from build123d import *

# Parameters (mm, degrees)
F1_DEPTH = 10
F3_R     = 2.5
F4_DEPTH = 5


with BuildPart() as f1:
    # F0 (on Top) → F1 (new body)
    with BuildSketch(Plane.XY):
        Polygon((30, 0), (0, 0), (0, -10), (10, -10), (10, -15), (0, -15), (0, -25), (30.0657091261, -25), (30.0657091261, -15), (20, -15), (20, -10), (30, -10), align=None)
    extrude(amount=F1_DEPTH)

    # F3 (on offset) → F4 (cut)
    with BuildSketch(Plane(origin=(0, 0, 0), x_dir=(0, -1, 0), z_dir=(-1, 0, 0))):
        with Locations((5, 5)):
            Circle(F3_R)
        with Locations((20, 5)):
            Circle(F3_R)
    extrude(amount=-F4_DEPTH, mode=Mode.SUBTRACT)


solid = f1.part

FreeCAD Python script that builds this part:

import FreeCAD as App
import Part
import Sketcher

V = App.Vector
Q = App.Units.Quantity

doc = App.newDocument("Part")
body = doc.addObject("PartDesign::Body", "Body")

# Sketch on XY plane
sketch1 = body.newObject("Sketcher::SketchObject", "Sketch")
sketch1.AttachmentSupport = (doc.getObject("XY_Plane"), [""])
sketch1.MapMode = "FlatFace"
sketch1.addGeometry([
    Part.LineSegment(V(30, 0, 0), V(0, 0, 0)),  # 0
    Part.LineSegment(V(0, 0, 0), V(0, -10, 0)),  # 1
    Part.LineSegment(V(0, -10, 0), V(10, -10, 0)),  # 2
    Part.LineSegment(V(10, -10, 0), V(10, -15, 0)),  # 3
    Part.LineSegment(V(10, -15, 0), V(0, -15, 0)),  # 4
    Part.LineSegment(V(0, -15, 0), V(0, -25, 0)),  # 5
    Part.LineSegment(V(0, -25, 0), V(30, -25, 0)),  # 6
    Part.LineSegment(V(30, -25, 0), V(30, -15, 0)),  # 7
    Part.LineSegment(V(30, -15, 0), V(20, -15, 0)),  # 8
    Part.LineSegment(V(20, -15, 0), V(20, -10, 0)),  # 9
    Part.LineSegment(V(20, -10, 0), V(30, -10, 0)),  # 10
    Part.LineSegment(V(30, -10, 0), V(30, 0, 0)),  # 11
], False)
sketch1.addConstraint([
    Sketcher.Constraint("Coincident", 0, 2, 1, 1),
    Sketcher.Constraint("Coincident", 1, 2, 2, 1),
    Sketcher.Constraint("Coincident", 2, 2, 3, 1),
    Sketcher.Constraint("Coincident", 3, 2, 4, 1),
    Sketcher.Constraint("Coincident", 4, 2, 5, 1),
    Sketcher.Constraint("Coincident", 5, 2, 6, 1),
    Sketcher.Constraint("Coincident", 6, 2, 7, 1),
    Sketcher.Constraint("Coincident", 7, 2, 8, 1),
    Sketcher.Constraint("Coincident", 8, 2, 9, 1),
    Sketcher.Constraint("Coincident", 9, 2, 10, 1),
    Sketcher.Constraint("Coincident", 10, 2, 11, 1),
    Sketcher.Constraint("Coincident", 11, 2, 0, 1),
    Sketcher.Constraint("Horizontal", 0),
    Sketcher.Constraint("Vertical", 1),
    Sketcher.Constraint("Horizontal", 2),
    Sketcher.Constraint("Vertical", 3),
    Sketcher.Constraint("Horizontal", 4),
    Sketcher.Constraint("Vertical", 5),
    Sketcher.Constraint("Horizontal", 6),
    Sketcher.Constraint("Vertical", 7),
    Sketcher.Constraint("Horizontal", 8),
    Sketcher.Constraint("Vertical", 9),
    Sketcher.Constraint("Horizontal", 10),
    Sketcher.Constraint("Vertical", 11),
    Sketcher.Constraint("Coincident", 0, 2, -1, 1),
    Sketcher.Constraint("PointOnObject", 4, 2, -2),
    Sketcher.Constraint("Horizontal", 4, 2, 7, 2),
    Sketcher.Constraint("Horizontal", 2, 2, 9, 2),
    Sketcher.Constraint("Equal", 4, 10),
    Sketcher.Constraint("Equal", 10, 1),
    Sketcher.Constraint("Equal", 1, 5),
    Sketcher.Constraint("DistanceX", 0, 2, 0, 1, Q("30 mm")),
    Sketcher.Constraint("DistanceX", 2, 1, 2, 2, Q("10 mm")),
    Sketcher.Constraint("DistanceY", 3, 2, 3, 1, Q("5 mm")),
    Sketcher.Constraint("DistanceX", 6, 1, 6, 2, Q("30.065709 mm")),
])
pad1 = body.newObject("PartDesign::Pad", "Pad")
pad1.Profile = sketch1
pad1.Length = 10

# Sketch on YZ plane
sketch2 = body.newObject("Sketcher::SketchObject", "Sketch001")
sketch2.AttachmentSupport = (doc.getObject("YZ_Plane"), [""])
sketch2.MapMode = "FlatFace"
sketch2.addGeometry([
    Part.Circle(V(-5, 5, 0), V(0, 0, 1), 2.5),
    Part.Circle(V(-20, 5, 0), V(0, 0, 1), 2.5),
], False)
sketch2.addConstraint([
    Sketcher.Constraint("Equal", 0, 1),
    Sketcher.Constraint("Horizontal", 0, 3, 1, 3),
    Sketcher.Constraint("Diameter", 0, Q("5 mm")),
    Sketcher.Constraint("DistanceX", 0, 3, -1, 1, Q("5 mm")),
    Sketcher.Constraint("DistanceY", -1, 1, 0, 3, Q("5 mm")),
    Sketcher.Constraint("DistanceX", 1, 3, -1, 1, Q("20 mm")),
])
pocket1 = body.newObject("PartDesign::Pocket", "Pocket")
pocket1.Profile = sketch2
pocket1.Length = 5
pocket1.Reversed = True

doc.recompute()
